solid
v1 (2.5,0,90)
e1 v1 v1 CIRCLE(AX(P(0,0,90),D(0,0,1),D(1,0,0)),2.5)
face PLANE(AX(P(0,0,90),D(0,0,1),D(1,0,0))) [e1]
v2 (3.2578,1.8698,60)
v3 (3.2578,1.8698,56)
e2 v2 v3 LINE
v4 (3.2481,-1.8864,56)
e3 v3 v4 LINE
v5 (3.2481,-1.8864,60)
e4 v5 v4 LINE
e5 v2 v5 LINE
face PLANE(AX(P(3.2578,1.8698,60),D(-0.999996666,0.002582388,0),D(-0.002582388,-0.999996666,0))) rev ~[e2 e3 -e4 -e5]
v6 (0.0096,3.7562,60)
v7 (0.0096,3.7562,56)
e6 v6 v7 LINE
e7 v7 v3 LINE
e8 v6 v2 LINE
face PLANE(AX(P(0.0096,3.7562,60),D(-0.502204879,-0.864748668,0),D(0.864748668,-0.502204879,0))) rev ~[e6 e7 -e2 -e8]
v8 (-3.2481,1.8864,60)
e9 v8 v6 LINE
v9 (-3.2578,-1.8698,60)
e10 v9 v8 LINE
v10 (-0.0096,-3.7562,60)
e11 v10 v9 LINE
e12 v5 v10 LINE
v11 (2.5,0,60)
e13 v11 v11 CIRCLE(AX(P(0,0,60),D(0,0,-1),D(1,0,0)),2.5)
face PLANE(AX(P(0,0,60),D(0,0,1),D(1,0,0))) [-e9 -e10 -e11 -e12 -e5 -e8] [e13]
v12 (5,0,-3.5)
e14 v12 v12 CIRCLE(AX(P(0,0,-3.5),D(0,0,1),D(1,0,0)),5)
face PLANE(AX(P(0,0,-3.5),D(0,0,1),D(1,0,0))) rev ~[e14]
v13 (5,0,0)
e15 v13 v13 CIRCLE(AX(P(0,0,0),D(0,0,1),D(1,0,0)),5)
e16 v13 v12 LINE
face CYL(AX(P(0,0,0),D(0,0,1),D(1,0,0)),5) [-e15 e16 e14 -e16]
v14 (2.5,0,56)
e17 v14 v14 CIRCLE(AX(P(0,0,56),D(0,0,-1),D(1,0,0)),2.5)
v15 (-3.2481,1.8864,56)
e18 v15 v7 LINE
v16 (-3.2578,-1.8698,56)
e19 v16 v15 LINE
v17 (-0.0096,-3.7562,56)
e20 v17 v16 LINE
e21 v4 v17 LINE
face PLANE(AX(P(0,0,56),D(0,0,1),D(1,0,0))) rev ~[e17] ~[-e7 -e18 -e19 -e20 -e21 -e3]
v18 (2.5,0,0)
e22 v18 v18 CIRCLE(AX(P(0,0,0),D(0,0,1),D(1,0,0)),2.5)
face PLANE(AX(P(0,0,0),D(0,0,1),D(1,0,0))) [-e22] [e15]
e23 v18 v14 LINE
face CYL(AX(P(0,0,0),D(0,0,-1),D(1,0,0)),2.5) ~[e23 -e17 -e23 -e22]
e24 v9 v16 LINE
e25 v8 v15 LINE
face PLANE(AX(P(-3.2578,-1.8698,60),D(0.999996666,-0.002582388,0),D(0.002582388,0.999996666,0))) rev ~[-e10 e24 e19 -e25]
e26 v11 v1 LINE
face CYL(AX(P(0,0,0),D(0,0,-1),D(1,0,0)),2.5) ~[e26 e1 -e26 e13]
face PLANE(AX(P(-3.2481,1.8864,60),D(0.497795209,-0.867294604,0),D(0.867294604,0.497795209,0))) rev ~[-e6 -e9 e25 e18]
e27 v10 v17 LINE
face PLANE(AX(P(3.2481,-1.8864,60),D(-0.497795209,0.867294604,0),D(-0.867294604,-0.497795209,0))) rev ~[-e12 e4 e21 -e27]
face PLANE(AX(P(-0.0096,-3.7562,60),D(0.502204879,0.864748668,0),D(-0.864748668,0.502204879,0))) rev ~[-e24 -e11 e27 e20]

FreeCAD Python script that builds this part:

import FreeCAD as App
import Part
import Sketcher

V = App.Vector

doc = App.newDocument("Part")
body = doc.addObject("PartDesign::Body", "Body")

# Sketch on XY plane
sketch1 = doc.addObject("Sketcher::SketchObject", "Sketch")
body.addObject(sketch1)
sketch1.AttachmentSupport = (doc.XY_Plane, [""])
sketch1.MapMode = "FlatFace"
sketch1.addGeometry(Part.Circle(V(0, 0, 0), V(0, 0, 1), 2.5), False)
sketch1.addConstraint(Sketcher.Constraint("Coincident", 0, 3, -1, 1))
sketch1.addConstraint(Sketcher.Constraint("Diameter", 0, 5.0))
pad1 = doc.addObject("PartDesign::Pad", "Pad")
body.addObject(pad1)
pad1.Profile = sketch1
pad1.Length = 90

# Sketch on XY plane
sketch2 = doc.addObject("Sketcher::SketchObject", "Sketch001")
body.addObject(sketch2)
sketch2.AttachmentSupport = (doc.XY_Plane, [""])
sketch2.MapMode = "FlatFace"
sketch2.addGeometry(Part.Circle(V(0, 0, 0), V(0, 0, 1), 5), False)
sketch2.addConstraint(Sketcher.Constraint("Coincident", 0, 3, -1, 1))
sketch2.addConstraint(Sketcher.Constraint("Diameter", 0, 10.0))
pad2 = doc.addObject("PartDesign::Pad", "Pad001")
body.addObject(pad2)
pad2.Profile = sketch2
pad2.Length = 3.5
pad2.Reversed = True

# Sketch on XY plane
sketch3 = doc.addObject("Sketcher::SketchObject", "Sketch002")
body.addObject(sketch3)
sketch3.AttachmentSupport = (doc.XY_Plane, [""])
sketch3.MapMode = "FlatFace"
sketch3.AttachmentOffset = App.Placement(V(0, 0, 60), App.Rotation())
sketch3.addGeometry(Part.LineSegment(V(0.0096, 3.7562, 0), V(-3.2481, 1.8864, 0)), False)
sketch3.addGeometry(Part.LineSegment(V(-3.2481, 1.8864, 0), V(-3.2578, -1.8698, 0)), False)
sketch3.addGeometry(Part.LineSegment(V(-3.2578, -1.8698, 0), V(-0.0096, -3.7562, 0)), False)
sketch3.addGeometry(Part.LineSegment(V(-0.0096, -3.7562, 0), V(3.2481, -1.8864, 0)), False)
sketch3.addGeometry(Part.LineSegment(V(3.2481, -1.8864, 0), V(3.2578, 1.8698, 0)), False)
sketch3.addGeometry(Part.LineSegment(V(3.2578, 1.8698, 0), V(0.0096, 3.7562, 0)), False)
sketch3.addConstraint(Sketcher.Constraint("Coincident", 0, 2, 1, 1))
sketch3.addConstraint(Sketcher.Constraint("Coincident", 1, 2, 2, 1))
sketch3.addConstraint(Sketcher.Constraint("Coincident", 2, 2, 3, 1))
sketch3.addConstraint(Sketcher.Constraint("Coincident", 3, 2, 4, 1))
sketch3.addConstraint(Sketcher.Constraint("Coincident", 4, 2, 5, 1))
sketch3.addConstraint(Sketcher.Constraint("Coincident", 5, 2, 0, 1))
sketch3.addConstraint(Sketcher.Constraint("Symmetric", 0, 2, 3, 2, -1, 1))
sketch3.addConstraint(Sketcher.Constraint("Symmetric", 1, 2, 4, 2, -1, 1))
sketch3.addConstraint(Sketcher.Constraint("Symmetric", 2, 2, 5, 2, -1, 1))
sketch3.addConstraint(Sketcher.Constraint("Equal", 0, 1))
sketch3.addConstraint(Sketcher.Constraint("Equal", 1, 2))
sketch3.addConstraint(Sketcher.Constraint("DistanceX", 0, 2, -1, 1, 3.248))
sketch3.addConstraint(Sketcher.Constraint("DistanceX", 1, 2, 3, 2, 6.506))
sketch3.addConstraint(Sketcher.Constraint("DistanceY", 2, 2, 4, 2, 5.626))
sketch3.addConstraint(Sketcher.Constraint("Distance", 0, 3.7562))
pad3 = doc.addObject("PartDesign::Pad", "Pad002")
body.addObject(pad3)
pad3.Profile = sketch3
pad3.Length = 4
pad3.Reversed = True

doc.recompute()
